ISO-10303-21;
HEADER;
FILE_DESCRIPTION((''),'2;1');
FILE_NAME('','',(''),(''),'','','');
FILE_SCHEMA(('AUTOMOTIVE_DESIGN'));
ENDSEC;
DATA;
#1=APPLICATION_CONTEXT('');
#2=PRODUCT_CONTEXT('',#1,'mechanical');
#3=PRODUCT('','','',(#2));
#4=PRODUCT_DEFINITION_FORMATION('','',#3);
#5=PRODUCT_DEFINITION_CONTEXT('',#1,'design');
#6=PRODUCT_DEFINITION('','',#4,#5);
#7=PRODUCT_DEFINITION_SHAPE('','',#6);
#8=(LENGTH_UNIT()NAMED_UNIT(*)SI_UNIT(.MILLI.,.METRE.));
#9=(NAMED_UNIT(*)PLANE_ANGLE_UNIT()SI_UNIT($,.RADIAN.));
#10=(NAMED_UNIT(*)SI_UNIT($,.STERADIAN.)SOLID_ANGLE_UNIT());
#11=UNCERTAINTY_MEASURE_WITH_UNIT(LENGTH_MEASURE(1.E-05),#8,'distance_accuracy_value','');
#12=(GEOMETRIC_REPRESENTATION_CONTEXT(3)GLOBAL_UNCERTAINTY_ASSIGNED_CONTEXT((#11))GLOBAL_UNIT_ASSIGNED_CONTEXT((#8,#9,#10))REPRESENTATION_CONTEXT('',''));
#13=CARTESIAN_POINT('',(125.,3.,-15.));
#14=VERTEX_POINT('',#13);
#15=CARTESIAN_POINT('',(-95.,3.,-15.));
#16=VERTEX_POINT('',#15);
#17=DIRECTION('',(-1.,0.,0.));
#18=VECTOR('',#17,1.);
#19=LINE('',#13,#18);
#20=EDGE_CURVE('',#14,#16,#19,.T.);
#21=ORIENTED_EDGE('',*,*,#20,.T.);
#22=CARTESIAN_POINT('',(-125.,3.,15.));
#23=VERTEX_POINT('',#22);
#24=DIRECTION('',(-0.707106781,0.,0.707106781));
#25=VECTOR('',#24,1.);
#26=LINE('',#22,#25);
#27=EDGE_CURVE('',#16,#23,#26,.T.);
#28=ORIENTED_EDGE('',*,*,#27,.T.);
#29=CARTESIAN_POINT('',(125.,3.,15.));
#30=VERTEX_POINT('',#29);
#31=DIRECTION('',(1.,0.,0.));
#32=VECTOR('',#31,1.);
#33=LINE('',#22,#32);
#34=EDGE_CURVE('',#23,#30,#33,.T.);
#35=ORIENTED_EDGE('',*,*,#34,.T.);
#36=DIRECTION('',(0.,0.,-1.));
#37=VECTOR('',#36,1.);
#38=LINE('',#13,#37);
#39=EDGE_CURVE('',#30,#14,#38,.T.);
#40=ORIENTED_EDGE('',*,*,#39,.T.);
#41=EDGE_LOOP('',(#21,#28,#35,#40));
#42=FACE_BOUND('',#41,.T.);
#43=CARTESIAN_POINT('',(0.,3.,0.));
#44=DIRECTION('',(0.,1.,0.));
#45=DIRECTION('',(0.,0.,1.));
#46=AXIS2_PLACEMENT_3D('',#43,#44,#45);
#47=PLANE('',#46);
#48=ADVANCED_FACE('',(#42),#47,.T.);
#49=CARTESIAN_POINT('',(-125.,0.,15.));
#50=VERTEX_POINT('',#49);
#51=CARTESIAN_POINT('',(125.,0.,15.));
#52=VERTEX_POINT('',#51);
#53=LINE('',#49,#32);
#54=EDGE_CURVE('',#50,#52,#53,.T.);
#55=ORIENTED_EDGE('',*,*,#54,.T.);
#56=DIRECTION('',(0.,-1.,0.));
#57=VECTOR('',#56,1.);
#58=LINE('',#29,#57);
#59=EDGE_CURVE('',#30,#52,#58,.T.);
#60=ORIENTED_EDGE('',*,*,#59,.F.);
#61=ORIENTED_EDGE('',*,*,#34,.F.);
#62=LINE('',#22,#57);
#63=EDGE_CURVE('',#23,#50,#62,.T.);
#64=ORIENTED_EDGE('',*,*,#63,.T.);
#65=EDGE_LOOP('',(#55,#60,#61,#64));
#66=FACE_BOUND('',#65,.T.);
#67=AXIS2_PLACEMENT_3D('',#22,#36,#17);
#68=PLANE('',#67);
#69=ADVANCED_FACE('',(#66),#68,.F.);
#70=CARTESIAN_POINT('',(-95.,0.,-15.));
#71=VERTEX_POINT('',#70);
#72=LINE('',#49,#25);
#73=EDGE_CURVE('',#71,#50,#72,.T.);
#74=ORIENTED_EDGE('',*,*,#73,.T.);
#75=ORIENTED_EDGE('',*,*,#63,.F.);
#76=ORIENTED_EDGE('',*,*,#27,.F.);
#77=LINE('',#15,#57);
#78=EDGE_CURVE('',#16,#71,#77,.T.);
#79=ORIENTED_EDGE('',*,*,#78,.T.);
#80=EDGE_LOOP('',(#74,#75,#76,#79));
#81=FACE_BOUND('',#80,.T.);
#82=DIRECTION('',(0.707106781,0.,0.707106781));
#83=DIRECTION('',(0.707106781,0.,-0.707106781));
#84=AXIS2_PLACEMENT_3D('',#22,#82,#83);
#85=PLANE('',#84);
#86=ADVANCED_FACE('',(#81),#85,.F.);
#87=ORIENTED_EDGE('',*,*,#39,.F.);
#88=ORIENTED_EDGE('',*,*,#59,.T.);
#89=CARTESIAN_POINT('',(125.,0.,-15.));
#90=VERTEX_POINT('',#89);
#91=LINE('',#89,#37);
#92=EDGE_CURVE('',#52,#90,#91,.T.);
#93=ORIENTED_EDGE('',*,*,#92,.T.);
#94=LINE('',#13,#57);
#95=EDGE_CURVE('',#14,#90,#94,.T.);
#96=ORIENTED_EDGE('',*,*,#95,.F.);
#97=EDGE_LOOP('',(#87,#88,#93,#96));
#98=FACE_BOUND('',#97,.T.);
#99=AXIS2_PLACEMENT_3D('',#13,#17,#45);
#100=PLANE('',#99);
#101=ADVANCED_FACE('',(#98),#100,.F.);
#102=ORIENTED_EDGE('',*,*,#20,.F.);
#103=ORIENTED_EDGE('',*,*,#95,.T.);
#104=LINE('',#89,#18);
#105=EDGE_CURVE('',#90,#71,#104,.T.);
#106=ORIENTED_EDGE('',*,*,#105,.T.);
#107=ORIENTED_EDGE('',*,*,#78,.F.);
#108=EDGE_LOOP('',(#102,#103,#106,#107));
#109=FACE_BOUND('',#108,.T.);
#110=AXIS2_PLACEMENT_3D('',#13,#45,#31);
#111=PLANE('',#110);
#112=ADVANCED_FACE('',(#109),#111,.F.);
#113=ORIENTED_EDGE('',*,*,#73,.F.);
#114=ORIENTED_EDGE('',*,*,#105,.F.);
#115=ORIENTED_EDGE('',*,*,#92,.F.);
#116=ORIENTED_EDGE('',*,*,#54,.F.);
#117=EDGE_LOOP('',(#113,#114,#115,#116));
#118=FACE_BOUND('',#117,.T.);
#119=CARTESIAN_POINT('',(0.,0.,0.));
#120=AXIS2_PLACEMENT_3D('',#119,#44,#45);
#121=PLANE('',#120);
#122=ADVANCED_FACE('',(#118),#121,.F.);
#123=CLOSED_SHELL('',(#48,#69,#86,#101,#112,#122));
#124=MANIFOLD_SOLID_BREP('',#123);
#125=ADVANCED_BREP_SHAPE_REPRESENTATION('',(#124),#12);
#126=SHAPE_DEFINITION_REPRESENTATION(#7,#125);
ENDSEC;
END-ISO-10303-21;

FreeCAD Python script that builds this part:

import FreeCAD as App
import Part
import Sketcher

V = App.Vector


def add_polygon(sketch, points):
    """Adds a closed chain of lines whose ends are joined by coincident constraints."""
    first, n = sketch.GeometryCount, len(points)
    for a, b in zip(points, points[1:] + points[:1]):
        sketch.addGeometry(Part.LineSegment(App.Vector(*a, 0), App.Vector(*b, 0)), False)
    for i in range(n):
        sketch.addConstraint(Sketcher.Constraint("Coincident", first + i, 2, first + (i + 1) % n, 1))

doc = App.newDocument("Part")
params = doc.addObject("Spreadsheet::Sheet", "Params")
for row, (alias, value) in enumerate([
    ("sketch1_width", "250 mm"),
    ("sketch1_width2", "220 mm"),
    ("sketch1_height", "30 mm"),
    ("pad1_length", "3 mm"),
], start=1):
    params.set(f"A{row}", alias)
    params.set(f"B{row}", "=" + value)
    params.setAlias(f"B{row}", alias)

body = doc.addObject("PartDesign::Body", "Body")

# Sketch on XZ plane
sketch1 = doc.addObject("Sketcher::SketchObject", "Sketch")
body.addObject(sketch1)
sketch1.AttachmentSupport = (doc.XZ_Plane, [""])
sketch1.MapMode = "FlatFace"
add_polygon(sketch1, [(-95, -15), (-125, 15), (125, 15), (125, -15)])  # lines 0-3
sketch1.addConstraint([
    Sketcher.Constraint("Horizontal", 1),
    Sketcher.Constraint("Vertical", 2),
    Sketcher.Constraint("Horizontal", 3),
    Sketcher.Constraint("Symmetric", 0, 2, 2, 2, -1, 1),
    Sketcher.Constraint("DistanceX", 1, 1, 1, 2, 250.0),
    Sketcher.Constraint("DistanceX", 3, 2, 3, 1, 220.0),
    Sketcher.Constraint("DistanceY", 2, 2, 2, 1, 30.0),
])
sketch1.setExpression("Constraints[8]", "Params.sketch1_width")
sketch1.setExpression("Constraints[9]", "Params.sketch1_width2")
sketch1.setExpression("Constraints[10]", "Params.sketch1_height")
pad1 = doc.addObject("PartDesign::Pad", "Pad")
body.addObject(pad1)
pad1.Profile = sketch1
pad1.setExpression("Length", "Params.pad1_length")
pad1.Reversed = True

doc.recompute()
